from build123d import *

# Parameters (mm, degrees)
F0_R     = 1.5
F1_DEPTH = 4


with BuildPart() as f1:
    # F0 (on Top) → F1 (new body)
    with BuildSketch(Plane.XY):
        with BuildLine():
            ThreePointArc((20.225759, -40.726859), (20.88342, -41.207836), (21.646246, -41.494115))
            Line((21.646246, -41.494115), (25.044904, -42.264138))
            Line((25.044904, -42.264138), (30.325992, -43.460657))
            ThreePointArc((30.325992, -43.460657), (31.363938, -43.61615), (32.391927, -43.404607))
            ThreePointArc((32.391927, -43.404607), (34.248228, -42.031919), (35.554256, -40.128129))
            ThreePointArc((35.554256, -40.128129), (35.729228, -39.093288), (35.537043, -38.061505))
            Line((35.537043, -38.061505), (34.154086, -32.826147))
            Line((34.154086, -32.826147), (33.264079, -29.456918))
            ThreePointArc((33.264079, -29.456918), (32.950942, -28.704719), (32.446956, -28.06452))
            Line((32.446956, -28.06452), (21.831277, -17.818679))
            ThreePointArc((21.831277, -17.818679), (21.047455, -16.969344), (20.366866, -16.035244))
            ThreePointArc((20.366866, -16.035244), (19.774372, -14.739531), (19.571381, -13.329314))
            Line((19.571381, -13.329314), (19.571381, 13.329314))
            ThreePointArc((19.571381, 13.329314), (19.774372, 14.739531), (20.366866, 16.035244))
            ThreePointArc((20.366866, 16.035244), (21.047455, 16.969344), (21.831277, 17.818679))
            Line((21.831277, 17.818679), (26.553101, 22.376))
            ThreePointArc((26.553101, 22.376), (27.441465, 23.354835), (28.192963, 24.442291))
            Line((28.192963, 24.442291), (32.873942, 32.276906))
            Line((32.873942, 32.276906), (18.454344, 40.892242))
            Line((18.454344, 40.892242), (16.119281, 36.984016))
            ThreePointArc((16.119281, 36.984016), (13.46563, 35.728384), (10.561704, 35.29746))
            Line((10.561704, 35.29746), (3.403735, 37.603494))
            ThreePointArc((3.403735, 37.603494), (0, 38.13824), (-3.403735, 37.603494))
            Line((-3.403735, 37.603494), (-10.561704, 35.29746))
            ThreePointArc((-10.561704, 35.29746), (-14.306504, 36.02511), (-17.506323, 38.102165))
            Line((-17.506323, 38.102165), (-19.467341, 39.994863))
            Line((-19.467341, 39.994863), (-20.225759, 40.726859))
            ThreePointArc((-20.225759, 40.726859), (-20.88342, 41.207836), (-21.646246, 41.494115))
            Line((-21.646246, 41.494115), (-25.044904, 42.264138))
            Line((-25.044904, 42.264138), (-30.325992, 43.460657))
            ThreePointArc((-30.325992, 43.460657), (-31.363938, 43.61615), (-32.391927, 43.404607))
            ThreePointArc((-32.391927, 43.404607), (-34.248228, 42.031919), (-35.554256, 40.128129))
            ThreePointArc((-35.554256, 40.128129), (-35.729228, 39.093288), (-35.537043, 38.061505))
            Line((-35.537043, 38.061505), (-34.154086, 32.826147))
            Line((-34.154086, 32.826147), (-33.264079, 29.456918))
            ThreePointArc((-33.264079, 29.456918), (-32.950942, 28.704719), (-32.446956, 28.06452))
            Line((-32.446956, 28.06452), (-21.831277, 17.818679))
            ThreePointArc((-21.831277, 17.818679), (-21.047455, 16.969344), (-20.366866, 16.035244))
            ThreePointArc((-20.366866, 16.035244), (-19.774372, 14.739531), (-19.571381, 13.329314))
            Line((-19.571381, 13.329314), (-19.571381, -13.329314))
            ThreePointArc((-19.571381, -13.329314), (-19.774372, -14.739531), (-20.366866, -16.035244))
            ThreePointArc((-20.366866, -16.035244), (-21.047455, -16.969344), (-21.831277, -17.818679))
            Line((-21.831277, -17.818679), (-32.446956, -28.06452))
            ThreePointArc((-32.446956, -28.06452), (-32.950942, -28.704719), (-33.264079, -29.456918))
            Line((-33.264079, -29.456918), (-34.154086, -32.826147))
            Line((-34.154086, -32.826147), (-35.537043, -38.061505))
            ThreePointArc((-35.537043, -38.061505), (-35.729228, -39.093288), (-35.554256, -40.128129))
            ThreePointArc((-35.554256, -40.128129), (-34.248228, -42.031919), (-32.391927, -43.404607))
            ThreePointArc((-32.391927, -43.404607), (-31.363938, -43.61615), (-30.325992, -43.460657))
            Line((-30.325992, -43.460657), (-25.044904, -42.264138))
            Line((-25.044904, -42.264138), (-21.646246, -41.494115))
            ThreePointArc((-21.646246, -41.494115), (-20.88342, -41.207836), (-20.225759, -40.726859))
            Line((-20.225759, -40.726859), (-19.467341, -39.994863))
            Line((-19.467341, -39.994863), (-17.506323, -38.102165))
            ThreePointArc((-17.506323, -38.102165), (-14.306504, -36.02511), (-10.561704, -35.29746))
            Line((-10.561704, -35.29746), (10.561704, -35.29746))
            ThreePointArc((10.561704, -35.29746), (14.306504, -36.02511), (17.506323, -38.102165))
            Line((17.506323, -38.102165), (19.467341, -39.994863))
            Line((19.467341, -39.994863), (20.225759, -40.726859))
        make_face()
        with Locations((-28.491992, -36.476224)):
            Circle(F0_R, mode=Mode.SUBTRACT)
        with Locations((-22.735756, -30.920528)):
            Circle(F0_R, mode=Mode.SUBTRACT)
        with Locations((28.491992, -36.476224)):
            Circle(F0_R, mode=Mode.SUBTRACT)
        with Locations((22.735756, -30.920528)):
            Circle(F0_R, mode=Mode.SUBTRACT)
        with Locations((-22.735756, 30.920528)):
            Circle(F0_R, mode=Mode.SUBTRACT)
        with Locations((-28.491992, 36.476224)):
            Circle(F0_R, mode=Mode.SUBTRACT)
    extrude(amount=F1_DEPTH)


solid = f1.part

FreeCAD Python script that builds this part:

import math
import FreeCAD as App
import Part
import Sketcher
from FreeCAD import Vector

doc = App.newDocument("Part")
body = doc.addObject("PartDesign::Body", "Body")

# Sketch on XY plane
sketch1 = body.newObject("Sketcher::SketchObject", "Sketch")
sketch1.AttachmentSupport = (doc.getObject("XY_Plane"), [""])
sketch1.MapMode = "FlatFace"
sketch1.addGeometry([
    Part.ArcOfCircle(Part.Circle(Vector(22.309152, -38.568256, 0), Vector(0, 0, 1), 3.000016), math.radians(-133.984272), math.radians(-102.765875)),  # 0
    Part.LineSegment(Vector(21.646246, -41.494115, 0), Vector(25.044904, -42.264138, 0)),  # 1
    Part.LineSegment(Vector(25.044904, -42.264138, 0), Vector(30.325992, -43.460657, 0)),  # 2
    Part.ArcOfCircle(Part.Circle(Vector(31.282577, -40.617259, 0), Vector(0, 0, 1), 2.999994), math.radians(-108.594132), math.radians(-68.297695)),  # 3
    Part.ArcOfCircle(Part.Circle(Vector(29.233395, -37.191797, 0), Vector(0, 0, 1), 6.9696), math.radians(-63.051658), math.radians(-24.917043)),  # 4
    Part.ArcOfCircle(Part.Circle(Vector(32.729327, -39.118274, 0), Vector(0, 0, 1), 3.000005), math.radians(-19.670936), math.radians(20.625352)),  # 5
    Part.LineSegment(Vector(35.537043, -38.061505, 0), Vector(34.154086, -32.826147, 0)),  # 6
    Part.LineSegment(Vector(34.154086, -32.826147, 0), Vector(33.264079, -29.456918, 0)),  # 7
    Part.ArcOfCircle(Part.Circle(Vector(30.363568, -30.223109, 0), Vector(0, 0, 1), 3.000002), math.radians(14.797103), math.radians(46.015628)),  # 8
    Part.LineSegment(Vector(32.446956, -28.06452, 0), Vector(21.831277, -17.818679, 0)),  # 9
    Part.ArcOfCircle(Part.Circle(Vector(28.775895, -10.623382, 0), Vector(0, 0, 1), 10.000001), math.radians(-147.235577), math.radians(-133.984339)),  # 10
    Part.ArcOfCircle(Part.Circle(Vector(24.571368, -13.329318, 0), Vector(0, 0, 1), 4.999987), math.radians(179.999949), math.radians(212.764446)),  # 11
    Part.LineSegment(Vector(19.571381, -13.329314, 0), Vector(19.571381, 13.329314, 0)),  # 12
    Part.ArcOfCircle(Part.Circle(Vector(24.571368, 13.329318, 0), Vector(0, 0, 1), 4.999987), math.radians(147.235554), math.radians(180.000051)),  # 13
    Part.ArcOfCircle(Part.Circle(Vector(28.775895, 10.623382, 0), Vector(0, 0, 1), 10.000001), math.radians(133.984339), math.radians(147.235577)),  # 14
    Part.LineSegment(Vector(21.831277, 17.818679, 0), Vector(26.553101, 22.376, 0)),  # 15
    Part.ArcOfCircle(Part.Circle(Vector(19.608472, 29.571301, 0), Vector(0, 0, 1), 10.000011), math.radians(-46.015631), math.radians(-30.85722)),  # 16
    Part.LineSegment(Vector(28.192963, 24.442291, 0), Vector(32.873942, 32.276906, 0)),  # 17
    Part.LineSegment(Vector(32.873942, 32.276906, 0), Vector(18.454344, 40.892242, 0)),  # 18
    Part.LineSegment(Vector(18.454344, 40.892242, 0), Vector(16.119281, 36.984016, 0)),  # 19
    Part.ArcOfCircle(Part.Circle(Vector(10.561703, 45.297466, 0), Vector(0, 0, 1), 10.000006), math.radians(-89.999997), math.radians(-56.237099)),  # 20
    Part.LineSegment(Vector(10.561704, 35.29746, 0), Vector(3.403735, 37.603494, 0)),  # 21
    Part.ArcOfCircle(Part.Circle(Vector(0, 27.038236, 0), Vector(0, 0, 1), 11.100004), math.radians(72.142981), math.radians(107.857019)),  # 22
    Part.LineSegment(Vector(-3.403735, 37.603494, 0), Vector(-10.561704, 35.29746, 0)),  # 23
    Part.ArcOfCircle(Part.Circle(Vector(-10.561704, 45.29746, 0), Vector(0, 0, 1), 10), math.radians(-133.984351), math.radians(-89.999999)),  # 24
    Part.LineSegment(Vector(-17.506323, 38.102165, 0), Vector(-19.467341, 39.994863, 0)),  # 25
    Part.LineSegment(Vector(-19.467341, 39.994863, 0), Vector(-20.225759, 40.726859, 0)),  # 26
    Part.ArcOfCircle(Part.Circle(Vector(-22.309152, 38.568256, 0), Vector(0, 0, 1), 3.000016), math.radians(46.015728), math.radians(77.234125)),  # 27
    Part.LineSegment(Vector(-21.646246, 41.494115, 0), Vector(-25.044904, 42.264138, 0)),  # 28
    Part.LineSegment(Vector(-25.044904, 42.264138, 0), Vector(-30.325992, 43.460657, 0)),  # 29
    Part.ArcOfCircle(Part.Circle(Vector(-31.282577, 40.617259, 0), Vector(0, 0, 1), 2.999994), math.radians(71.405868), math.radians(111.702305)),  # 30
    Part.ArcOfCircle(Part.Circle(Vector(-29.233395, 37.191797, 0), Vector(0, 0, 1), 6.9696), math.radians(116.948342), math.radians(155.082957)),  # 31
    Part.ArcOfCircle(Part.Circle(Vector(-32.729327, 39.118274, 0), Vector(0, 0, 1), 3.000005), math.radians(160.329064), math.radians(200.625352)),  # 32
    Part.LineSegment(Vector(-35.537043, 38.061505, 0), Vector(-34.154086, 32.826147, 0)),  # 33
    Part.LineSegment(Vector(-34.154086, 32.826147, 0), Vector(-33.264079, 29.456918, 0)),  # 34
    Part.ArcOfCircle(Part.Circle(Vector(-30.363568, 30.223109, 0), Vector(0, 0, 1), 3.000002), math.radians(-165.202897), math.radians(-133.984372)),  # 35
    Part.LineSegment(Vector(-32.446956, 28.06452, 0), Vector(-21.831277, 17.818679, 0)),  # 36
    Part.ArcOfCircle(Part.Circle(Vector(-28.775895, 10.623382, 0), Vector(0, 0, 1), 10.000001), math.radians(32.764423), math.radians(46.015661)),  # 37
    Part.ArcOfCircle(Part.Circle(Vector(-24.571368, 13.329318, 0), Vector(0, 0, 1), 4.999987), math.radians(-0.000051), math.radians(32.764446)),  # 38
    Part.LineSegment(Vector(-19.571381, 13.329314, 0), Vector(-19.571381, -13.329314, 0)),  # 39
    Part.ArcOfCircle(Part.Circle(Vector(-24.571368, -13.329318, 0), Vector(0, 0, 1), 4.999987), math.radians(-32.764446), math.radians(0.000051)),  # 40
    Part.ArcOfCircle(Part.Circle(Vector(-28.775895, -10.623382, 0), Vector(0, 0, 1), 10.000001), math.radians(-46.015661), math.radians(-32.764423)),  # 41
    Part.LineSegment(Vector(-21.831277, -17.818679, 0), Vector(-32.446956, -28.06452, 0)),  # 42
    Part.ArcOfCircle(Part.Circle(Vector(-30.363568, -30.223109, 0), Vector(0, 0, 1), 3.000002), math.radians(133.984372), math.radians(165.202897)),  # 43
    Part.LineSegment(Vector(-33.264079, -29.456918, 0), Vector(-34.154086, -32.826147, 0)),  # 44
    Part.LineSegment(Vector(-34.154086, -32.826147, 0), Vector(-35.537043, -38.061505, 0)),  # 45
    Part.ArcOfCircle(Part.Circle(Vector(-32.729327, -39.118274, 0), Vector(0, 0, 1), 3.000005), math.radians(159.374648), math.radians(199.670936)),  # 46
    Part.ArcOfCircle(Part.Circle(Vector(-29.233395, -37.191797, 0), Vector(0, 0, 1), 6.9696), math.radians(-155.082957), math.radians(-116.948342)),  # 47
    Part.ArcOfCircle(Part.Circle(Vector(-31.282577, -40.617259, 0), Vector(0, 0, 1), 2.999994), math.radians(-111.702305), math.radians(-71.405868)),  # 48
    Part.LineSegment(Vector(-30.325992, -43.460657, 0), Vector(-25.044904, -42.264138, 0)),  # 49
    Part.LineSegment(Vector(-25.044904, -42.264138, 0), Vector(-21.646246, -41.494115, 0)),  # 50
    Part.ArcOfCircle(Part.Circle(Vector(-22.309152, -38.568256, 0), Vector(0, 0, 1), 3.000016), math.radians(-77.234125), math.radians(-46.015728)),  # 51
    Part.LineSegment(Vector(-20.225759, -40.726859, 0), Vector(-19.467341, -39.994863, 0)),  # 52
    Part.LineSegment(Vector(-19.467341, -39.994863, 0), Vector(-17.506323, -38.102165, 0)),  # 53
    Part.ArcOfCircle(Part.Circle(Vector(-10.561704, -45.29746, 0), Vector(0, 0, 1), 10), math.radians(89.999999), math.radians(133.984351)),  # 54
    Part.LineSegment(Vector(-10.561704, -35.29746, 0), Vector(10.561704, -35.29746, 0)),  # 55
    Part.ArcOfCircle(Part.Circle(Vector(10.561704, -45.29746, 0), Vector(0, 0, 1), 10), math.radians(46.015649), math.radians(90.000001)),  # 56
    Part.LineSegment(Vector(17.506323, -38.102165, 0), Vector(19.467341, -39.994863, 0)),  # 57
    Part.LineSegment(Vector(19.467341, -39.994863, 0), Vector(20.225759, -40.726859, 0)),  # 58
    Part.Circle(Vector(-28.491992, -36.476224, 0), Vector(0, 0, 1), 1.5),  # 59
    Part.Circle(Vector(-22.735756, -30.920528, 0), Vector(0, 0, 1), 1.5),  # 60
    Part.Circle(Vector(28.491992, -36.476224, 0), Vector(0, 0, 1), 1.5),  # 61
    Part.Circle(Vector(22.735756, -30.920528, 0), Vector(0, 0, 1), 1.5),  # 62
    Part.Circle(Vector(-22.735756, 30.920528, 0), Vector(0, 0, 1), 1.5),  # 63
    Part.Circle(Vector(-28.491992, 36.476224, 0), Vector(0, 0, 1), 1.5),  # 64
], False)
sketch1.addConstraint([
    Sketcher.Constraint("Coincident", 0, 2, 1, 1),
    Sketcher.Constraint("Coincident", 1, 2, 2, 1),
    Sketcher.Constraint("Coincident", 2, 2, 3, 1),
    Sketcher.Constraint("Coincident", 3, 2, 4, 1),
    Sketcher.Constraint("Coincident", 4, 2, 5, 1),
    Sketcher.Constraint("Coincident", 5, 2, 6, 1),
    Sketcher.Constraint("Coincident", 6, 2, 7, 1),
    Sketcher.Constraint("Coincident", 7, 2, 8, 1),
    Sketcher.Constraint("Coincident", 8, 2, 9, 1),
    Sketcher.Constraint("Coincident", 9, 2, 10, 2),
    Sketcher.Constraint("Coincident", 10, 1, 11, 2),
    Sketcher.Constraint("Coincident", 11, 1, 12, 1),
    Sketcher.Constraint("Coincident", 12, 2, 13, 2),
    Sketcher.Constraint("Coincident", 13, 1, 14, 2),
    Sketcher.Constraint("Coincident", 14, 1, 15, 1),
    Sketcher.Constraint("Coincident", 15, 2, 16, 1),
    Sketcher.Constraint("Coincident", 16, 2, 17, 1),
    Sketcher.Constraint("Coincident", 17, 2, 18, 1),
    Sketcher.Constraint("Coincident", 18, 2, 19, 1),
    Sketcher.Constraint("Coincident", 19, 2, 20, 2),
    Sketcher.Constraint("Coincident", 20, 1, 21, 1),
    Sketcher.Constraint("Coincident", 21, 2, 22, 1),
    Sketcher.Constraint("Coincident", 22, 2, 23, 1),
    Sketcher.Constraint("Coincident", 23, 2, 24, 2),
    Sketcher.Constraint("Coincident", 24, 1, 25, 1),
    Sketcher.Constraint("Coincident", 25, 2, 26, 1),
    Sketcher.Constraint("Coincident", 26, 2, 27, 1),
    Sketcher.Constraint("Coincident", 27, 2, 28, 1),
    Sketcher.Constraint("Coincident", 28, 2, 29, 1),
    Sketcher.Constraint("Coincident", 29, 2, 30, 1),
    Sketcher.Constraint("Coincident", 30, 2, 31, 1),
    Sketcher.Constraint("Coincident", 31, 2, 32, 1),
    Sketcher.Constraint("Coincident", 32, 2, 33, 1),
    Sketcher.Constraint("Coincident", 33, 2, 34, 1),
    Sketcher.Constraint("Coincident", 34, 2, 35, 1),
    Sketcher.Constraint("Coincident", 35, 2, 36, 1),
    Sketcher.Constraint("Coincident", 36, 2, 37, 2),
    Sketcher.Constraint("Coincident", 37, 1, 38, 2),
    Sketcher.Constraint("Coincident", 38, 1, 39, 1),
    Sketcher.Constraint("Coincident", 39, 2, 40, 2),
    Sketcher.Constraint("Coincident", 40, 1, 41, 2),
    Sketcher.Constraint("Coincident", 41, 1, 42, 1),
    Sketcher.Constraint("Coincident", 42, 2, 43, 1),
    Sketcher.Constraint("Coincident", 43, 2, 44, 1),
    Sketcher.Constraint("Coincident", 44, 2, 45, 1),
    Sketcher.Constraint("Coincident", 45, 2, 46, 1),
    Sketcher.Constraint("Coincident", 46, 2, 47, 1),
    Sketcher.Constraint("Coincident", 47, 2, 48, 1),
    Sketcher.Constraint("Coincident", 48, 2, 49, 1),
    Sketcher.Constraint("Coincident", 49, 2, 50, 1),
    Sketcher.Constraint("Coincident", 50, 2, 51, 1),
    Sketcher.Constraint("Coincident", 51, 2, 52, 1),
    Sketcher.Constraint("Coincident", 52, 2, 53, 1),
    Sketcher.Constraint("Coincident", 53, 2, 54, 2),
    Sketcher.Constraint("Coincident", 54, 1, 55, 1),
    Sketcher.Constraint("Coincident", 55, 2, 56, 2),
    Sketcher.Constraint("Coincident", 56, 1, 57, 1),
    Sketcher.Constraint("Coincident", 57, 2, 58, 1),
    Sketcher.Constraint("Coincident", 58, 2, 0, 1),
    Sketcher.Constraint("Vertical", 12),
    Sketcher.Constraint("Vertical", 39),
    Sketcher.Constraint("Horizontal", 55),
    Sketcher.Constraint("PointOnObject", 22, 3, -2),
    Sketcher.Constraint("Diameter", 59, 3.0),
    Sketcher.Constraint("Diameter", 60, 3.0),
    Sketcher.Constraint("Diameter", 61, 3.0),
    Sketcher.Constraint("Diameter", 62, 3.0),
    Sketcher.Constraint("Diameter", 63, 3.0),
    Sketcher.Constraint("Diameter", 64, 3.0),
    Sketcher.Constraint("Radius", 8, 3.000002),
    Sketcher.Constraint("Radius", 10, 10.000001),
    Sketcher.Constraint("Radius", 14, 10.000001),
    Sketcher.Constraint("Radius", 24, 10.0),
    Sketcher.Constraint("Radius", 35, 3.000002),
    Sketcher.Constraint("Radius", 37, 10.000001),
    Sketcher.Constraint("Radius", 41, 10.000001),
    Sketcher.Constraint("Radius", 43, 3.000002),
    Sketcher.Constraint("Radius", 54, 10.0),
    Sketcher.Constraint("Radius", 56, 10.0),
    Sketcher.Constraint("Radius", 4, 6.9696),
    Sketcher.Constraint("Radius", 31, 6.9696),
    Sketcher.Constraint("Radius", 47, 6.9696),
    Sketcher.Constraint("Radius", 16, 10.000011),
    Sketcher.Constraint("DistanceY", -1, 1, 15, 2, 22.376),
    Sketcher.Constraint("Radius", 0, 3.000016),
    Sketcher.Constraint("Radius", 3, 2.999994),
    Sketcher.Constraint("Radius", 5, 3.000005),
    Sketcher.Constraint("Radius", 11, 4.999987),
    Sketcher.Constraint("Radius", 13, 4.999987),
    Sketcher.Constraint("Radius", 20, 10.000006),
    Sketcher.Constraint("Radius", 22, 11.100004),
    Sketcher.Constraint("Radius", 27, 3.000016),
    Sketcher.Constraint("Radius", 30, 2.999994),
    Sketcher.Constraint("Radius", 32, 3.000005),
    Sketcher.Constraint("Radius", 38, 4.999987),
    Sketcher.Constraint("Radius", 40, 4.999987),
    Sketcher.Constraint("Radius", 46, 3.000005),
    Sketcher.Constraint("Radius", 48, 2.999994),
    Sketcher.Constraint("Radius", 51, 3.000016),
    Sketcher.Constraint("DistanceX", 55, 1, 55, 2, 21.123408),
    Sketcher.Constraint("DistanceY", 12, 1, 12, 2, 26.658628),
    Sketcher.Constraint("DistanceY", 39, 2, 39, 1, 26.658628),
    Sketcher.Constraint("DistanceY", -1, 1, 16, 3, 29.571301),
    Sketcher.Constraint("DistanceX", -1, 1, 15, 2, 26.553101),
    Sketcher.Constraint("Distance", 9, 14.75364),
    Sketcher.Constraint("Distance", 21, 7.52026),
    Sketcher.Constraint("Distance", 23, 7.52026),
    Sketcher.Constraint("Distance", 36, 14.75364),
    Sketcher.Constraint("Distance", 42, 14.75364),
    Sketcher.Constraint("DistanceY", 3, 3, -1, 1, 40.617259),
    Sketcher.Constraint("DistanceX", -1, 1, 8, 3, 30.363568),
    Sketcher.Constraint("DistanceY", 8, 3, -1, 1, 30.223109),
    Sketcher.Constraint("DistanceY", 10, 3, -1, 1, 10.623382),
    Sketcher.Constraint("DistanceX", -1, 1, 11, 3, 24.571368),
    Sketcher.Constraint("DistanceY", 11, 3, -1, 1, 13.329318),
    Sketcher.Constraint("DistanceY", -1, 1, 13, 3, 13.329318),
    Sketcher.Constraint("DistanceY", -1, 1, 14, 3, 10.623382),
    Sketcher.Constraint("DistanceY", -1, 1, 24, 3, 45.29746),
    Sketcher.Constraint("DistanceY", -1, 1, 30, 3, 40.617259),
    Sketcher.Constraint("DistanceX", 35, 3, -1, 1, 30.363568),
    Sketcher.Constraint("DistanceY", -1, 1, 35, 3, 30.223109),
    Sketcher.Constraint("DistanceY", -1, 1, 37, 3, 10.623382),
    Sketcher.Constraint("DistanceX", 38, 3, -1, 1, 24.571368),
    Sketcher.Constraint("DistanceY", -1, 1, 38, 3, 13.329318),
    Sketcher.Constraint("DistanceY", 40, 3, -1, 1, 13.329318),
    Sketcher.Constraint("DistanceY", 41, 3, -1, 1, 10.623382),
    Sketcher.Constraint("DistanceX", 43, 3, -1, 1, 30.363568),
    Sketcher.Constraint("DistanceY", 43, 3, -1, 1, 30.223109),
    Sketcher.Constraint("DistanceY", 48, 3, -1, 1, 40.617259),
    Sketcher.Constraint("DistanceY", 54, 3, -1, 1, 45.29746),
    Sketcher.Constraint("DistanceX", 59, 3, -1, 1, 28.491992),
    Sketcher.Constraint("DistanceY", 60, 3, -1, 1, 30.920528),
    Sketcher.Constraint("DistanceX", -1, 1, 61, 3, 28.491992),
    Sketcher.Constraint("DistanceY", 62, 3, -1, 1, 30.920528),
    Sketcher.Constraint("DistanceY", -1, 1, 63, 3, 30.920528),
    Sketcher.Constraint("DistanceX", 64, 3, -1, 1, 28.491992),
    Sketcher.Constraint("DistanceY", 1, 2, -1, 1, 42.264138),
    Sketcher.Constraint("DistanceX", -1, 1, 2, 2, 30.325992),
    Sketcher.Constraint("DistanceY", 4, 2, -1, 1, 40.128129),
    Sketcher.Constraint("DistanceX", -1, 1, 7, 2, 33.264079),
    Sketcher.Constraint("DistanceY", 8, 2, -1, 1, 28.06452),
    Sketcher.Constraint("DistanceY", -1, 1, 14, 1, 17.818679),
    Sketcher.Constraint("DistanceY", -1, 1, 16, 2, 24.442291),
    Sketcher.Constraint("DistanceX", -1, 1, 19, 2, 16.119281),
    Sketcher.Constraint("DistanceY", -1, 1, 20, 1, 35.29746),
    Sketcher.Constraint("DistanceX", 25, 2, -1, 1, 19.467341),
    Sketcher.Constraint("DistanceX", 26, 2, -1, 1, 20.225759),
    Sketcher.Constraint("DistanceY", -1, 1, 26, 2, 40.726859),
    Sketcher.Constraint("DistanceY", -1, 1, 28, 2, 42.264138),
    Sketcher.Constraint("DistanceX", 29, 2, -1, 1, 30.325992),
    Sketcher.Constraint("DistanceY", -1, 1, 31, 2, 40.128129),
    Sketcher.Constraint("DistanceX", 34, 2, -1, 1, 33.264079),
    Sketcher.Constraint("DistanceY", -1, 1, 35, 2, 28.06452),
    Sketcher.Constraint("DistanceY", 41, 1, -1, 1, 17.818679),
    Sketcher.Constraint("DistanceX", 43, 2, -1, 1, 33.264079),
    Sketcher.Constraint("DistanceY", 46, 2, -1, 1, 40.128129),
    Sketcher.Constraint("DistanceY", 49, 2, -1, 1, 42.264138),
    Sketcher.Constraint("DistanceX", 51, 2, -1, 1, 20.225759),
    Sketcher.Constraint("DistanceY", 51, 2, -1, 1, 40.726859),
    Sketcher.Constraint("DistanceX", 52, 2, -1, 1, 19.467341),
    Sketcher.Constraint("DistanceX", -1, 1, 57, 2, 19.467341),
    Sketcher.Constraint("DistanceX", -1, 1, 58, 2, 20.225759),
    Sketcher.Constraint("DistanceY", 58, 2, -1, 1, 40.726859),
    Sketcher.Constraint("Distance", 1, 3.484797),
    Sketcher.Constraint("Distance", 2, 5.414938),
    Sketcher.Constraint("Distance", 6, 5.414937),
    Sketcher.Constraint("Distance", 7, 3.484798),
    Sketcher.Constraint("Distance", 17, 9.126487),
    Sketcher.Constraint("Distance", 18, 16.797286),
    Sketcher.Constraint("Distance", 19, 4.552664),
    Sketcher.Constraint("Distance", 25, 2.725417),
    Sketcher.Constraint("Distance", 26, 1.054047),
    Sketcher.Constraint("Distance", 28, 3.484797),
    Sketcher.Constraint("Distance", 29, 5.414938),
    Sketcher.Constraint("Distance", 33, 5.414937),
    Sketcher.Constraint("Distance", 34, 3.484798),
    Sketcher.Constraint("Distance", 44, 3.484798),
    Sketcher.Constraint("Distance", 45, 5.414937),
    Sketcher.Constraint("Distance", 49, 5.414938),
    Sketcher.Constraint("Distance", 50, 3.484797),
    Sketcher.Constraint("Distance", 52, 1.054047),
    Sketcher.Constraint("Distance", 53, 2.725417),
    Sketcher.Constraint("Distance", 57, 2.725417),
    Sketcher.Constraint("Distance", 58, 1.054047),
    Sketcher.Constraint("DistanceX", -1, 1, 0, 3, 22.309152),
    Sketcher.Constraint("DistanceX", -1, 1, 3, 3, 31.282577),
    Sketcher.Constraint("DistanceX", -1, 1, 4, 3, 29.233395),
    Sketcher.Constraint("DistanceY", 4, 3, -1, 1, 37.191797),
    Sketcher.Constraint("DistanceX", -1, 1, 5, 3, 32.729327),
    Sketcher.Constraint("DistanceX", -1, 1, 20, 3, 10.561703),
    Sketcher.Constraint("DistanceY", -1, 1, 22, 3, 27.038236),
    Sketcher.Constraint("DistanceX", 24, 3, -1, 1, 10.561704),
    Sketcher.Constraint("DistanceX", 27, 3, -1, 1, 22.309152),
    Sketcher.Constraint("DistanceX", 30, 3, -1, 1, 31.282577),
    Sketcher.Constraint("DistanceX", 31, 3, -1, 1, 29.233395),
    Sketcher.Constraint("DistanceY", -1, 1, 31, 3, 37.191797),
    Sketcher.Constraint("DistanceX", 32, 3, -1, 1, 32.729327),
    Sketcher.Constraint("DistanceX", 46, 3, -1, 1, 32.729327),
    Sketcher.Constraint("DistanceY", 46, 3, -1, 1, 39.118274),
    Sketcher.Constraint("DistanceX", 47, 3, -1, 1, 29.233395),
    Sketcher.Constraint("DistanceX", 48, 3, -1, 1, 31.282577),
    Sketcher.Constraint("DistanceX", 51, 3, -1, 1, 22.309152),
    Sketcher.Constraint("DistanceX", 54, 3, -1, 1, 10.561704),
    Sketcher.Constraint("DistanceX", -1, 1, 56, 3, 10.561704),
    Sketcher.Constraint("DistanceY", 59, 3, -1, 1, 36.476224),
    Sketcher.Constraint("DistanceX", 60, 3, -1, 1, 22.735756),
    Sketcher.Constraint("DistanceY", 61, 3, -1, 1, 36.476224),
    Sketcher.Constraint("DistanceX", -1, 1, 62, 3, 22.735756),
    Sketcher.Constraint("DistanceX", 63, 3, -1, 1, 22.735756),
    Sketcher.Constraint("DistanceY", -1, 1, 64, 3, 36.476224),
    Sketcher.Constraint("DistanceX", -1, 1, 6, 2, 34.154086),
    Sketcher.Constraint("DistanceX", -1, 1, 10, 1, 20.366866),
    Sketcher.Constraint("DistanceY", 11, 1, -1, 1, 13.329314),
    Sketcher.Constraint("DistanceX", -1, 1, 13, 1, 20.366866),
    Sketcher.Constraint("DistanceX", -1, 1, 17, 2, 32.873942),
    Sketcher.Constraint("DistanceX", -1, 1, 20, 1, 10.561704),
    Sketcher.Constraint("DistanceX", 22, 2, -1, 1, 3.403735),
    Sketcher.Constraint("DistanceX", 33, 2, -1, 1, 34.154086),
    Sketcher.Constraint("DistanceX", 37, 1, -1, 1, 20.366866),
    Sketcher.Constraint("DistanceY", -1, 1, 38, 1, 13.329314),
    Sketcher.Constraint("DistanceX", 40, 1, -1, 1, 20.366866),
    Sketcher.Constraint("DistanceX", 44, 2, -1, 1, 34.154086),
    Sketcher.Constraint("DistanceX", 48, 2, -1, 1, 30.325992),
    Sketcher.Constraint("DistanceX", 54, 1, -1, 1, 10.561704),
])
pad1 = body.newObject("PartDesign::Pad", "Pad")
pad1.Profile = sketch1
pad1.Length = 4

doc.recompute()
